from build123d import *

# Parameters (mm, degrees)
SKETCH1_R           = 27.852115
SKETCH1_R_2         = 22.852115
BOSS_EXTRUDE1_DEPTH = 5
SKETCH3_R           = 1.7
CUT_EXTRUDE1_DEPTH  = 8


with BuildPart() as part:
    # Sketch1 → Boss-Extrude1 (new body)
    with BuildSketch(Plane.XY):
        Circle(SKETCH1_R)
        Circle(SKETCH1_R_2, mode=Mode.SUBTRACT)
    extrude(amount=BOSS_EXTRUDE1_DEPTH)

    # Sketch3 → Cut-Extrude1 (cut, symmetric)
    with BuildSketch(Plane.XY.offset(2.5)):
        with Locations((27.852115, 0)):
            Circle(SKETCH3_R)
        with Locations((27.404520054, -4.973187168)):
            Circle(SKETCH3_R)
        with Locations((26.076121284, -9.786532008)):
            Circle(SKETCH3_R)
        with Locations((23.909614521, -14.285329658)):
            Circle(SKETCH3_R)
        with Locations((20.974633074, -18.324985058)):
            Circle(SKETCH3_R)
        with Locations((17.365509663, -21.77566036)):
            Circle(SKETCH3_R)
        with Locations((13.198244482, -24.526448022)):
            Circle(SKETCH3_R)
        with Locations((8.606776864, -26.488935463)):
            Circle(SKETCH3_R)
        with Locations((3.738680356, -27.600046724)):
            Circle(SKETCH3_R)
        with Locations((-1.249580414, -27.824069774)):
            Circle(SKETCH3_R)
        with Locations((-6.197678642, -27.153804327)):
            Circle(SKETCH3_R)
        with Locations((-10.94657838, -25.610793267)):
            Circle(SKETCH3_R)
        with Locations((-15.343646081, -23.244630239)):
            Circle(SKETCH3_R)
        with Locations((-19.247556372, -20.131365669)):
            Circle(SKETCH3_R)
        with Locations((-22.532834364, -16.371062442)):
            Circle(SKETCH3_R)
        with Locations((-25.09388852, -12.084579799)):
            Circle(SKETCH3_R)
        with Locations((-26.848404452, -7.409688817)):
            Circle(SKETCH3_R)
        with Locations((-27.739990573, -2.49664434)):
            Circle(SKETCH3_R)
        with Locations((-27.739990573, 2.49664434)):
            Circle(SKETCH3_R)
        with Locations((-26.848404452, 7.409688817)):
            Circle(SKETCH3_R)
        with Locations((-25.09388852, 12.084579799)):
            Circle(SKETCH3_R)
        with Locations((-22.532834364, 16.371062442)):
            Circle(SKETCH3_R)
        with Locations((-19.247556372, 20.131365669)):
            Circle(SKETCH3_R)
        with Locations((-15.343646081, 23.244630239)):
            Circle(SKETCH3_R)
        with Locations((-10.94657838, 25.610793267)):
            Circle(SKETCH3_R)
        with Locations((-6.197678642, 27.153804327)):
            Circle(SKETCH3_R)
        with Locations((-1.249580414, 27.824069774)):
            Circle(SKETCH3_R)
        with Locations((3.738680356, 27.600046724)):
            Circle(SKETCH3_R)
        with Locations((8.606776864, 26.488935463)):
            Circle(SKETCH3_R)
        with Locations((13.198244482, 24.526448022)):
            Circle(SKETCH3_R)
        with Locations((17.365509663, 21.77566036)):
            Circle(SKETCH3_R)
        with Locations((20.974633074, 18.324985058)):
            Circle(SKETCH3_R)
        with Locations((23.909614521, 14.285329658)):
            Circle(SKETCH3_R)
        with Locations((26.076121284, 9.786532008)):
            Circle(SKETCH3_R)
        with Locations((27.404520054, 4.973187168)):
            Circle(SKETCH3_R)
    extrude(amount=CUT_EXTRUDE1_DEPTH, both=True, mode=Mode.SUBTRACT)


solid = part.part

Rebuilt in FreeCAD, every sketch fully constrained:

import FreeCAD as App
import Part
import Sketcher
Q = App.Units.Quantity

doc = App.newDocument("Part")
body = doc.addObject("PartDesign::Body", "Body")

sketch1 = body.newObject("Sketcher::SketchObject", "Sketch")
sketch1.AttachmentSupport = (doc.getObject("XY_Plane"), [""])
sketch1.MapMode = "FlatFace"
sketch1.addGeometry([
    Part.Circle(App.Vector(0, 0, 0), App.Vector(0, 0, 1), 27.852115),
    Part.Circle(App.Vector(0, 0, 0), App.Vector(0, 0, 1), 22.852115),
], False)
sketch1.addConstraint([
    Sketcher.Constraint("Coincident", 0, 3, -1, 1),
    Sketcher.Constraint("Coincident", 1, 3, -1, 1),
    Sketcher.Constraint("Diameter", 0, Q("55.70423 mm")),
    Sketcher.Constraint("Diameter", 1, Q("45.70423 mm")),
])
pad1 = body.newObject("PartDesign::Pad", "Pad")
pad1.Profile = sketch1
pad1.Length = 5

sketch2 = body.newObject("Sketcher::SketchObject", "Sketch001")
sketch2.AttachmentSupport = (doc.getObject("XY_Plane"), [""])
sketch2.MapMode = "FlatFace"
sketch2.AttachmentOffset = App.Placement(App.Vector(0, 0, 2.5), App.Rotation())
sketch2.addGeometry([
    Part.Circle(App.Vector(27.852115, 0, 0), App.Vector(0, 0, 1), 1.7),
    Part.Circle(App.Vector(27.40452, -4.973187, 0), App.Vector(0, 0, 1), 1.7),
    Part.Circle(App.Vector(26.076121, -9.786532, 0), App.Vector(0, 0, 1), 1.7),
    Part.Circle(App.Vector(23.909615, -14.28533, 0), App.Vector(0, 0, 1), 1.7),
    Part.Circle(App.Vector(20.974633, -18.324985, 0), App.Vector(0, 0, 1), 1.7),
    Part.Circle(App.Vector(17.36551, -21.77566, 0), App.Vector(0, 0, 1), 1.7),
    Part.Circle(App.Vector(13.198244, -24.526448, 0), App.Vector(0, 0, 1), 1.7),
    Part.Circle(App.Vector(8.606777, -26.488935, 0), App.Vector(0, 0, 1), 1.7),
    Part.Circle(App.Vector(3.73868, -27.600047, 0), App.Vector(0, 0, 1), 1.7),
    Part.Circle(App.Vector(-1.24958, -27.82407, 0), App.Vector(0, 0, 1), 1.7),
    Part.Circle(App.Vector(-6.197679, -27.153804, 0), App.Vector(0, 0, 1), 1.7),
    Part.Circle(App.Vector(-10.946578, -25.610793, 0), App.Vector(0, 0, 1), 1.7),
    Part.Circle(App.Vector(-15.343646, -23.24463, 0), App.Vector(0, 0, 1), 1.7),
    Part.Circle(App.Vector(-19.247556, -20.131366, 0), App.Vector(0, 0, 1), 1.7),
    Part.Circle(App.Vector(-22.532834, -16.371062, 0), App.Vector(0, 0, 1), 1.7),
    Part.Circle(App.Vector(-25.093889, -12.08458, 0), App.Vector(0, 0, 1), 1.7),
    Part.Circle(App.Vector(-26.848404, -7.409689, 0), App.Vector(0, 0, 1), 1.7),
    Part.Circle(App.Vector(-27.739991, -2.496644, 0), App.Vector(0, 0, 1), 1.7),
    Part.Circle(App.Vector(-27.739991, 2.496644, 0), App.Vector(0, 0, 1), 1.7),
    Part.Circle(App.Vector(-26.848404, 7.409689, 0), App.Vector(0, 0, 1), 1.7),
    Part.Circle(App.Vector(-25.093889, 12.08458, 0), App.Vector(0, 0, 1), 1.7),
    Part.Circle(App.Vector(-22.532834, 16.371062, 0), App.Vector(0, 0, 1), 1.7),
    Part.Circle(App.Vector(-19.247556, 20.131366, 0), App.Vector(0, 0, 1), 1.7),
    Part.Circle(App.Vector(-15.343646, 23.24463, 0), App.Vector(0, 0, 1), 1.7),
    Part.Circle(App.Vector(-10.946578, 25.610793, 0), App.Vector(0, 0, 1), 1.7),
    Part.Circle(App.Vector(-6.197679, 27.153804, 0), App.Vector(0, 0, 1), 1.7),
    Part.Circle(App.Vector(-1.24958, 27.82407, 0), App.Vector(0, 0, 1), 1.7),
    Part.Circle(App.Vector(3.73868, 27.600047, 0), App.Vector(0, 0, 1), 1.7),
    Part.Circle(App.Vector(8.606777, 26.488935, 0), App.Vector(0, 0, 1), 1.7),
    Part.Circle(App.Vector(13.198244, 24.526448, 0), App.Vector(0, 0, 1), 1.7),
    Part.Circle(App.Vector(17.36551, 21.77566, 0), App.Vector(0, 0, 1), 1.7),
    Part.Circle(App.Vector(20.974633, 18.324985, 0), App.Vector(0, 0, 1), 1.7),
    Part.Circle(App.Vector(23.909615, 14.28533, 0), App.Vector(0, 0, 1), 1.7),
    Part.Circle(App.Vector(26.076121, 9.786532, 0), App.Vector(0, 0, 1), 1.7),
    Part.Circle(App.Vector(27.40452, 4.973187, 0), App.Vector(0, 0, 1), 1.7),
], False)
sketch2.addConstraint([
    Sketcher.Constraint("Equal", 0, 1),
    Sketcher.Constraint("Equal", 1, 2),
    Sketcher.Constraint("Equal", 2, 3),
    Sketcher.Constraint("Equal", 3, 4),
    Sketcher.Constraint("Equal", 4, 5),
    Sketcher.Constraint("Equal", 5, 6),
    Sketcher.Constraint("Equal", 6, 7),
    Sketcher.Constraint("Equal", 7, 8),
    Sketcher.Constraint("Equal", 8, 9),
    Sketcher.Constraint("Equal", 9, 10),
    Sketcher.Constraint("Equal", 10, 11),
    Sketcher.Constraint("Equal", 11, 12),
    Sketcher.Constraint("Equal", 12, 13),
    Sketcher.Constraint("Equal", 13, 14),
    Sketcher.Constraint("Equal", 14, 15),
    Sketcher.Constraint("Equal", 15, 16),
    Sketcher.Constraint("Equal", 16, 17),
    Sketcher.Constraint("Equal", 17, 18),
    Sketcher.Constraint("Equal", 18, 19),
    Sketcher.Constraint("Equal", 19, 20),
    Sketcher.Constraint("Equal", 20, 21),
    Sketcher.Constraint("Equal", 21, 22),
    Sketcher.Constraint("Equal", 22, 23),
    Sketcher.Constraint("Equal", 23, 24),
    Sketcher.Constraint("Equal", 24, 25),
    Sketcher.Constraint("Equal", 25, 26),
    Sketcher.Constraint("Equal", 26, 27),
    Sketcher.Constraint("Equal", 27, 28),
    Sketcher.Constraint("Equal", 28, 29),
    Sketcher.Constraint("Equal", 29, 30),
    Sketcher.Constraint("Equal", 30, 31),
    Sketcher.Constraint("Equal", 31, 32),
    Sketcher.Constraint("Equal", 32, 33),
    Sketcher.Constraint("Equal", 33, 34),
    Sketcher.Constraint("Symmetric", 17, 3, 18, 3, -1),
    Sketcher.Constraint("Symmetric", 16, 3, 19, 3, -1),
    Sketcher.Constraint("Symmetric", 15, 3, 20, 3, -1),
    Sketcher.Constraint("Symmetric", 14, 3, 21, 3, -1),
    Sketcher.Constraint("Symmetric", 13, 3, 22, 3, -1),
    Sketcher.Constraint("Symmetric", 12, 3, 23, 3, -1),
    Sketcher.Constraint("Symmetric", 11, 3, 24, 3, -1),
    Sketcher.Constraint("Symmetric", 10, 3, 25, 3, -1),
    Sketcher.Constraint("Symmetric", 9, 3, 26, 3, -1),
    Sketcher.Constraint("Symmetric", 8, 3, 27, 3, -1),
    Sketcher.Constraint("Symmetric", 7, 3, 28, 3, -1),
    Sketcher.Constraint("Symmetric", 6, 3, 29, 3, -1),
    Sketcher.Constraint("Symmetric", 5, 3, 30, 3, -1),
    Sketcher.Constraint("Symmetric", 4, 3, 31, 3, -1),
    Sketcher.Constraint("Symmetric", 3, 3, 32, 3, -1),
    Sketcher.Constraint("Symmetric", 2, 3, 33, 3, -1),
    Sketcher.Constraint("Symmetric", 1, 3, 34, 3, -1),
    Sketcher.Constraint("PointOnObject", 0, 3, -1),
    Sketcher.Constraint("Diameter", 0, Q("3.4 mm")),
    Sketcher.Constraint("DistanceX", 2, 3, 1, 3, Q("1.328399 mm")),
    Sketcher.Constraint("DistanceX", 3, 3, 0, 3, Q("3.9425 mm")),
    Sketcher.Constraint("DistanceY", 8, 3, 6, 3, Q("3.073599 mm")),
    Sketcher.Constraint("DistanceX", 10, 3, 9, 3, Q("4.948098 mm")),
    Sketcher.Constraint("DistanceX", 11, 3, 10, 3, Q("4.7489 mm")),
    Sketcher.Constraint("DistanceX", -1, 1, 1, 3, Q("27.40452 mm")),
    Sketcher.Constraint("DistanceY", 3, 3, -1, 1, Q("14.28533 mm")),
    Sketcher.Constraint("DistanceX", -1, 1, 5, 3, Q("17.36551 mm")),
    Sketcher.Constraint("DistanceY", 5, 3, -1, 1, Q("21.77566 mm")),
    Sketcher.Constraint("DistanceY", 6, 3, -1, 1, Q("24.526448 mm")),
    Sketcher.Constraint("DistanceX", -1, 1, 8, 3, Q("3.73868 mm")),
    Sketcher.Constraint("DistanceX", 9, 3, -1, 1, Q("1.24958 mm")),
    Sketcher.Constraint("DistanceY", 9, 3, -1, 1, Q("27.82407 mm")),
    Sketcher.Constraint("DistanceY", 12, 3, -1, 1, Q("23.24463 mm")),
    Sketcher.Constraint("DistanceX", 15, 3, -1, 1, Q("25.093889 mm")),
    Sketcher.Constraint("DistanceY", 15, 3, -1, 1, Q("12.08458 mm")),
    Sketcher.Constraint("DistanceY", 16, 3, -1, 1, Q("7.409689 mm")),
    Sketcher.Constraint("DistanceX", 17, 3, -1, 1, Q("27.739991 mm")),
    Sketcher.Constraint("DistanceX", 4, 3, 3, 3, Q("2.934981 mm")),
    Sketcher.Constraint("DistanceX", 4, 3, 2, 3, Q("5.101488 mm")),
    Sketcher.Constraint("DistanceY", 5, 3, 2, 3, Q("11.989128 mm")),
    Sketcher.Constraint("DistanceX", 6, 3, 4, 3, Q("7.776389 mm")),
    Sketcher.Constraint("DistanceY", 6, 3, 1, 3, Q("19.553261 mm")),
    Sketcher.Constraint("DistanceY", 7, 3, 4, 3, Q("8.16395 mm")),
    Sketcher.Constraint("DistanceY", 8, 3, 7, 3, Q("1.111111 mm")),
    Sketcher.Constraint("DistanceY", 10, 3, 7, 3, Q("0.664869 mm")),
    Sketcher.Constraint("DistanceY", 10, 3, 11, 3, Q("1.543011 mm")),
    Sketcher.Constraint("DistanceX", 13, 3, 12, 3, Q("3.90391 mm")),
    Sketcher.Constraint("DistanceY", 10, 3, 13, 3, Q("7.022439 mm")),
    Sketcher.Constraint("DistanceX", 14, 3, 12, 3, Q("7.189188 mm")),
    Sketcher.Constraint("DistanceY", 11, 3, 14, 3, Q("9.239731 mm")),
    Sketcher.Constraint("DistanceX", 16, 3, 14, 3, Q("4.31557 mm")),
    Sketcher.Constraint("DistanceY", 14, 3, 17, 3, Q("13.874418 mm")),
    Sketcher.Constraint("DistanceX", -1, 1, 7, 3, Q("8.606777 mm")),
    Sketcher.Constraint("DistanceX", 12, 3, -1, 1, Q("15.343646 mm")),
])
pocket1 = body.newObject("PartDesign::Pocket", "Pocket")
pocket1.Profile = sketch2
pocket1.Length = 16
pocket1.Midplane = True

doc.recompute()
